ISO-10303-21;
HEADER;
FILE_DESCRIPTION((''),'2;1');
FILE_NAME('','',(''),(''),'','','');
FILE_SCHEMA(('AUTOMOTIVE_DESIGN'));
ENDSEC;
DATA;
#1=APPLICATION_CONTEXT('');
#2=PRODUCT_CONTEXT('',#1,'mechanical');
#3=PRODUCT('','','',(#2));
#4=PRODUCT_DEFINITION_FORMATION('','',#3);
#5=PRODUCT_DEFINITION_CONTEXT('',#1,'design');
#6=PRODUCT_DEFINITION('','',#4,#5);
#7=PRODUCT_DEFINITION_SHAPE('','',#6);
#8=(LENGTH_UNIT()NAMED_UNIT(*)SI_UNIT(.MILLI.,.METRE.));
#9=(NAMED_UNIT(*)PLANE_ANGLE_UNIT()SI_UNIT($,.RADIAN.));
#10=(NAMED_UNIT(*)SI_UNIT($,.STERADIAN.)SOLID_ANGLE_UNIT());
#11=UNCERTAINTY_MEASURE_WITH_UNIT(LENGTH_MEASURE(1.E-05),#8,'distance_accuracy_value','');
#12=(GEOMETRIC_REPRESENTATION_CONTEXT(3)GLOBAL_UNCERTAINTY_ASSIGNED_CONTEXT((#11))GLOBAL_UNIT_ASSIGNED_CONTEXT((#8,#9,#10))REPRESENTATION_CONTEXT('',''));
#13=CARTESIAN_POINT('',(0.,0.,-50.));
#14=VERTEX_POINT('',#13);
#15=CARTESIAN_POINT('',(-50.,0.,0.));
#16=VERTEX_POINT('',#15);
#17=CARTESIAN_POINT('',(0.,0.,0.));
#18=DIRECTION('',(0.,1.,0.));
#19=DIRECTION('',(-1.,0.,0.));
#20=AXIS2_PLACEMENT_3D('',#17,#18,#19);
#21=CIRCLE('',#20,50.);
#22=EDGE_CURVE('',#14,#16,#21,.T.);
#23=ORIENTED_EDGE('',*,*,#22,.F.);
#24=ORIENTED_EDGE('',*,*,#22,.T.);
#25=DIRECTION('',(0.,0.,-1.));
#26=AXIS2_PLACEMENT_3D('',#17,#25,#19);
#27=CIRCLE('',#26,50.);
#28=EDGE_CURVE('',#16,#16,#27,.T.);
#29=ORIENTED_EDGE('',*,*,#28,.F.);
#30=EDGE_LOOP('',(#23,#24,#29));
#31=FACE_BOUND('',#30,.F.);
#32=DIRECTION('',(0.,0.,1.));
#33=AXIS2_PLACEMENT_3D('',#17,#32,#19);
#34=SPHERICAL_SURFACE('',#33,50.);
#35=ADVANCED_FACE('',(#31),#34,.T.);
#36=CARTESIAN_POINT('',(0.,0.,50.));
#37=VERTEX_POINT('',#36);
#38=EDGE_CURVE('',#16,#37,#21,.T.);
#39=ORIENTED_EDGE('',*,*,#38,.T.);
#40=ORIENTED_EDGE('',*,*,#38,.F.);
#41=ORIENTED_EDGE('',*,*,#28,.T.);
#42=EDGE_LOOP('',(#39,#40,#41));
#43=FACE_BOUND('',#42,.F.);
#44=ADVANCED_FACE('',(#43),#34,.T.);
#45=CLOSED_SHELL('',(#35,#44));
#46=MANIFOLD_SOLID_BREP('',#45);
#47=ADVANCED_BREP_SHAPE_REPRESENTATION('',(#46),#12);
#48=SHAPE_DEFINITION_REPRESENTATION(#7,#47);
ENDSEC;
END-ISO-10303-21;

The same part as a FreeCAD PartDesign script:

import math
import FreeCAD as App
import Part
import Sketcher
from FreeCAD import Vector
Q = App.Units.Quantity

doc = App.newDocument("Part")
body = doc.addObject("PartDesign::Body", "Body")

sketch1 = doc.addObject("Sketcher::SketchObject", "Sketch")
body.addObject(sketch1)
sketch1.AttachmentSupport = (doc.XZ_Plane, [""])
sketch1.MapMode = "FlatFace"
sketch1.addGeometry([
    Part.ArcOfCircle(Part.Circle(Vector(0, 0, 0), Vector(0, 0, 1), 50), math.radians(90), math.radians(270)),
    Part.LineSegment(Vector(0, 50, 0), Vector(0, -50, 0)),
], False)
sketch1.addConstraint([
    Sketcher.Constraint("Coincident", 0, 1, 1, 1),
    Sketcher.Constraint("Coincident", 1, 2, 0, 2),
    Sketcher.Constraint("Vertical", 1),
    Sketcher.Constraint("Coincident", 0, 3, -1, 1),
    Sketcher.Constraint("PointOnObject", 0, 1, -2),
    Sketcher.Constraint("Radius", 0, Q("1.9685 in")),
])
revolution = doc.addObject("PartDesign::Revolution", "Revolution")
body.addObject(revolution)
revolution.Profile = sketch1
revolution.ReferenceAxis = (sketch1, ["V_Axis"])
revolution.Angle = 360

doc.recompute()
